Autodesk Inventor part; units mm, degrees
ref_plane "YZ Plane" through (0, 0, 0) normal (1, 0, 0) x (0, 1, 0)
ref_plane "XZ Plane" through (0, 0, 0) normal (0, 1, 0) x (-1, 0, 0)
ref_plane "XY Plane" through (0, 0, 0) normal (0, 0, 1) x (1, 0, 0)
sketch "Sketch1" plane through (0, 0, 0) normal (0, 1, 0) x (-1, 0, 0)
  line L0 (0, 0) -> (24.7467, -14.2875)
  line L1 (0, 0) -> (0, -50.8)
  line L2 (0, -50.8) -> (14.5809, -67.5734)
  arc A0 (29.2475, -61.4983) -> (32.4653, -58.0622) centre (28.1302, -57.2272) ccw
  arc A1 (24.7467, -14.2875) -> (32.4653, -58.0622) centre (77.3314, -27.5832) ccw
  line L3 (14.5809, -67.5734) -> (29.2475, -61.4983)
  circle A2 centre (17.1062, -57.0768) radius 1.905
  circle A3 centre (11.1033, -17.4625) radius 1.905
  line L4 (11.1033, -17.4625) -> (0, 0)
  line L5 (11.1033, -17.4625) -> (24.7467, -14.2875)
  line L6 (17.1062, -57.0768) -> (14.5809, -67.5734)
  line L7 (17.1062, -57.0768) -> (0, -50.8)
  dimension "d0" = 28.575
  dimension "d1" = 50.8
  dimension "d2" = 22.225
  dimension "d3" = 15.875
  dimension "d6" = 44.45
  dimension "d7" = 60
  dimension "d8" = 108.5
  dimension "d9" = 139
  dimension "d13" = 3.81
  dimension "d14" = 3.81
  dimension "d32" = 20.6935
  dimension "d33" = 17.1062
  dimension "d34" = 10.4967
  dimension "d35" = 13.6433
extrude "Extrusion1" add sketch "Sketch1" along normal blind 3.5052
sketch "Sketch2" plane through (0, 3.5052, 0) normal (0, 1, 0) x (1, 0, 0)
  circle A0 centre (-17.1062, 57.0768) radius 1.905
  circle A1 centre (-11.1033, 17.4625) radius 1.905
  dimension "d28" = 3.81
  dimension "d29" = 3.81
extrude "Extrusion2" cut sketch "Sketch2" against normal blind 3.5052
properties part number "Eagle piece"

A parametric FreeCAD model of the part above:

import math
import FreeCAD as App
import Part
import Sketcher
from FreeCAD import Vector
Q = App.Units.Quantity

doc = App.newDocument("Part")
body = doc.addObject("PartDesign::Body", "Body")

# Sketch on XZ plane
sketch1 = body.newObject("Sketcher::SketchObject", "Sketch")
sketch1.AttachmentSupport = (doc.getObject("XZ_Plane"), [""])
sketch1.MapMode = "FlatFace"
sketch1.addGeometry([
    Part.ArcOfCircle(Part.Circle(Vector(-77.3, -27.6, 0), Vector(0, 0, 1), 54.2), math.radians(-34), math.radians(14)),  # 0
    Part.LineSegment(Vector(-24.7, -14.3, 0), Vector(0, 0, 0)),  # 1
    Part.LineSegment(Vector(0, 0, 0), Vector(0, -50.8, 0)),  # 2
    Part.LineSegment(Vector(0, -50.8, 0), Vector(-14.6, -67.6, 0)),  # 3
    Part.LineSegment(Vector(-14.6, -67.6, 0), Vector(-29.2, -61.5, 0)),  # 4
    Part.ArcOfCircle(Part.Circle(Vector(-28.1, -57.2, 0), Vector(0, 0, 1), 4.4), math.radians(-169), math.radians(-105)),  # 5
], False)
sketch1.addConstraint([
    Sketcher.Constraint("Coincident", 0, 2, 1, 1),
    Sketcher.Constraint("Coincident", 1, 2, 2, 1),
    Sketcher.Constraint("Coincident", 2, 2, 3, 1),
    Sketcher.Constraint("Coincident", 3, 2, 4, 1),
    Sketcher.Constraint("Coincident", 4, 2, 5, 2),
    Sketcher.Constraint("Coincident", 5, 1, 0, 1),
    Sketcher.Constraint("Vertical", 2),
    Sketcher.Constraint("Coincident", 1, 2, -1, 1),
    Sketcher.Constraint("DistanceY", 2, 2, 2, 1, Q("2 in")),
    Sketcher.Constraint("Distance", 1, Q("1.125 in")),
    Sketcher.Constraint("Distance", 3, Q("0.875 in")),
    Sketcher.Constraint("Distance", 4, Q("0.625 in")),
    Sketcher.Constraint("Angle", 1, Q("30 deg")),
    Sketcher.Constraint("Angle", 3, Q("-131 deg")),
    Sketcher.Constraint("Angle", 4, Q("157.5 deg")),
    Sketcher.Constraint("Radius", 5, Q("0.1738 in")),
    Sketcher.Constraint("Radius", 0, 54.2395),
    Sketcher.Constraint("DistanceX", 4, 2, 5, 3, Q("0.044 in")),
    Sketcher.Constraint("DistanceX", 0, 3, 3, 2, Q("2.4705 in")),
])
pad1 = body.newObject("PartDesign::Pad", "Pad")
pad1.Profile = sketch1
pad1.Length = Q("0.138 in")
pad1.Reversed = True

# Sketch on XZ plane
sketch2 = body.newObject("Sketcher::SketchObject", "Sketch001")
sketch2.AttachmentSupport = (doc.getObject("XZ_Plane"), [""])
sketch2.MapMode = "FlatFace"
sketch2.AttachmentOffset = App.Placement(Vector(0, 0, -0.138 * 25.4), App.Rotation())
sketch2.addGeometry([
    Part.Circle(Vector(-17.1, -57.1, 0), Vector(0, 0, 1), 1.9),
    Part.Circle(Vector(-11.1, -17.5, 0), Vector(0, 0, 1), 1.9),
], False)
sketch2.addConstraint([
    Sketcher.Constraint("Equal", 0, 1),
    Sketcher.Constraint("Diameter", 0, Q("0.15 in")),
    Sketcher.Constraint("DistanceY", 1, 3, -1, 1, Q("0.6875 in")),
    Sketcher.Constraint("DistanceX", 0, 3, -1, 1, 17.1062),
    Sketcher.Constraint("DistanceY", 0, 3, -1, 1, 57.0768),
    Sketcher.Constraint("DistanceX", 1, 3, -1, 1, 11.1033),
])
pocket1 = body.newObject("PartDesign::Pocket", "Pocket")
pocket1.Profile = sketch2
pocket1.Length = Q("0.138 in")
pocket1.Reversed = True

doc.recompute()
